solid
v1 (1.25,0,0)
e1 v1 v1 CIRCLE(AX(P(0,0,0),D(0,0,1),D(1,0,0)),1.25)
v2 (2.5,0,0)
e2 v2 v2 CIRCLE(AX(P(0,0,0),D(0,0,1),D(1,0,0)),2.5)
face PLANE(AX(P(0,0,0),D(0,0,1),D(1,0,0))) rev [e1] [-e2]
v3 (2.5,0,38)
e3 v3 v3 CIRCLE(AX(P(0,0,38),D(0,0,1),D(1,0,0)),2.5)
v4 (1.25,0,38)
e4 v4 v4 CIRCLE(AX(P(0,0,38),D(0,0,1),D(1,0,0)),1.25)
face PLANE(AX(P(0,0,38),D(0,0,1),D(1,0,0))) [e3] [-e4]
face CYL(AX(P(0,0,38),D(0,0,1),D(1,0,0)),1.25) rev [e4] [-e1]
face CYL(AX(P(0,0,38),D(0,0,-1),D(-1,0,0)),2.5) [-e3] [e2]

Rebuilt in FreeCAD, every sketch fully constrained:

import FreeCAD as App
import Part
import Sketcher
from FreeCAD import Vector

doc = App.newDocument("Part")
body = doc.addObject("PartDesign::Body", "Body")

# Sketch on XY plane
sketch1 = doc.addObject("Sketcher::SketchObject", "Sketch")
body.addObject(sketch1)
sketch1.AttachmentSupport = (doc.XY_Plane, [""])
sketch1.MapMode = "FlatFace"
sketch1.addGeometry(Part.Circle(Vector(0, 0, 0), Vector(0, 0, 1), 2.5), False)
sketch1.addConstraint(Sketcher.Constraint("Coincident", 0, 3, -1, 1))
sketch1.addConstraint(Sketcher.Constraint("Diameter", 0, 5.0))
pad1 = doc.addObject("PartDesign::Pad", "Pad")
body.addObject(pad1)
pad1.Profile = sketch1
pad1.Length = 38

# Sketch on XY plane
sketch2 = doc.addObject("Sketcher::SketchObject", "Sketch001")
body.addObject(sketch2)
sketch2.AttachmentSupport = (doc.XY_Plane, [""])
sketch2.MapMode = "FlatFace"
sketch2.AttachmentOffset = App.Placement(Vector(0, 0, 38), App.Rotation())
sketch2.addGeometry(Part.Circle(Vector(0, 0, 0), Vector(0, 0, 1), 1.25), False)
sketch2.addConstraint(Sketcher.Constraint("Coincident", 0, 3, -1, 1))
sketch2.addConstraint(Sketcher.Constraint("Diameter", 0, 2.5))
doc.recompute()
hole = doc.addObject("PartDesign::Hole", "Hole")
body.addObject(hole)
hole.Profile = sketch2
hole.ThreadType = "None"
hole.Diameter = 2.5
hole.DepthType = "ThroughAll"

doc.recompute()
